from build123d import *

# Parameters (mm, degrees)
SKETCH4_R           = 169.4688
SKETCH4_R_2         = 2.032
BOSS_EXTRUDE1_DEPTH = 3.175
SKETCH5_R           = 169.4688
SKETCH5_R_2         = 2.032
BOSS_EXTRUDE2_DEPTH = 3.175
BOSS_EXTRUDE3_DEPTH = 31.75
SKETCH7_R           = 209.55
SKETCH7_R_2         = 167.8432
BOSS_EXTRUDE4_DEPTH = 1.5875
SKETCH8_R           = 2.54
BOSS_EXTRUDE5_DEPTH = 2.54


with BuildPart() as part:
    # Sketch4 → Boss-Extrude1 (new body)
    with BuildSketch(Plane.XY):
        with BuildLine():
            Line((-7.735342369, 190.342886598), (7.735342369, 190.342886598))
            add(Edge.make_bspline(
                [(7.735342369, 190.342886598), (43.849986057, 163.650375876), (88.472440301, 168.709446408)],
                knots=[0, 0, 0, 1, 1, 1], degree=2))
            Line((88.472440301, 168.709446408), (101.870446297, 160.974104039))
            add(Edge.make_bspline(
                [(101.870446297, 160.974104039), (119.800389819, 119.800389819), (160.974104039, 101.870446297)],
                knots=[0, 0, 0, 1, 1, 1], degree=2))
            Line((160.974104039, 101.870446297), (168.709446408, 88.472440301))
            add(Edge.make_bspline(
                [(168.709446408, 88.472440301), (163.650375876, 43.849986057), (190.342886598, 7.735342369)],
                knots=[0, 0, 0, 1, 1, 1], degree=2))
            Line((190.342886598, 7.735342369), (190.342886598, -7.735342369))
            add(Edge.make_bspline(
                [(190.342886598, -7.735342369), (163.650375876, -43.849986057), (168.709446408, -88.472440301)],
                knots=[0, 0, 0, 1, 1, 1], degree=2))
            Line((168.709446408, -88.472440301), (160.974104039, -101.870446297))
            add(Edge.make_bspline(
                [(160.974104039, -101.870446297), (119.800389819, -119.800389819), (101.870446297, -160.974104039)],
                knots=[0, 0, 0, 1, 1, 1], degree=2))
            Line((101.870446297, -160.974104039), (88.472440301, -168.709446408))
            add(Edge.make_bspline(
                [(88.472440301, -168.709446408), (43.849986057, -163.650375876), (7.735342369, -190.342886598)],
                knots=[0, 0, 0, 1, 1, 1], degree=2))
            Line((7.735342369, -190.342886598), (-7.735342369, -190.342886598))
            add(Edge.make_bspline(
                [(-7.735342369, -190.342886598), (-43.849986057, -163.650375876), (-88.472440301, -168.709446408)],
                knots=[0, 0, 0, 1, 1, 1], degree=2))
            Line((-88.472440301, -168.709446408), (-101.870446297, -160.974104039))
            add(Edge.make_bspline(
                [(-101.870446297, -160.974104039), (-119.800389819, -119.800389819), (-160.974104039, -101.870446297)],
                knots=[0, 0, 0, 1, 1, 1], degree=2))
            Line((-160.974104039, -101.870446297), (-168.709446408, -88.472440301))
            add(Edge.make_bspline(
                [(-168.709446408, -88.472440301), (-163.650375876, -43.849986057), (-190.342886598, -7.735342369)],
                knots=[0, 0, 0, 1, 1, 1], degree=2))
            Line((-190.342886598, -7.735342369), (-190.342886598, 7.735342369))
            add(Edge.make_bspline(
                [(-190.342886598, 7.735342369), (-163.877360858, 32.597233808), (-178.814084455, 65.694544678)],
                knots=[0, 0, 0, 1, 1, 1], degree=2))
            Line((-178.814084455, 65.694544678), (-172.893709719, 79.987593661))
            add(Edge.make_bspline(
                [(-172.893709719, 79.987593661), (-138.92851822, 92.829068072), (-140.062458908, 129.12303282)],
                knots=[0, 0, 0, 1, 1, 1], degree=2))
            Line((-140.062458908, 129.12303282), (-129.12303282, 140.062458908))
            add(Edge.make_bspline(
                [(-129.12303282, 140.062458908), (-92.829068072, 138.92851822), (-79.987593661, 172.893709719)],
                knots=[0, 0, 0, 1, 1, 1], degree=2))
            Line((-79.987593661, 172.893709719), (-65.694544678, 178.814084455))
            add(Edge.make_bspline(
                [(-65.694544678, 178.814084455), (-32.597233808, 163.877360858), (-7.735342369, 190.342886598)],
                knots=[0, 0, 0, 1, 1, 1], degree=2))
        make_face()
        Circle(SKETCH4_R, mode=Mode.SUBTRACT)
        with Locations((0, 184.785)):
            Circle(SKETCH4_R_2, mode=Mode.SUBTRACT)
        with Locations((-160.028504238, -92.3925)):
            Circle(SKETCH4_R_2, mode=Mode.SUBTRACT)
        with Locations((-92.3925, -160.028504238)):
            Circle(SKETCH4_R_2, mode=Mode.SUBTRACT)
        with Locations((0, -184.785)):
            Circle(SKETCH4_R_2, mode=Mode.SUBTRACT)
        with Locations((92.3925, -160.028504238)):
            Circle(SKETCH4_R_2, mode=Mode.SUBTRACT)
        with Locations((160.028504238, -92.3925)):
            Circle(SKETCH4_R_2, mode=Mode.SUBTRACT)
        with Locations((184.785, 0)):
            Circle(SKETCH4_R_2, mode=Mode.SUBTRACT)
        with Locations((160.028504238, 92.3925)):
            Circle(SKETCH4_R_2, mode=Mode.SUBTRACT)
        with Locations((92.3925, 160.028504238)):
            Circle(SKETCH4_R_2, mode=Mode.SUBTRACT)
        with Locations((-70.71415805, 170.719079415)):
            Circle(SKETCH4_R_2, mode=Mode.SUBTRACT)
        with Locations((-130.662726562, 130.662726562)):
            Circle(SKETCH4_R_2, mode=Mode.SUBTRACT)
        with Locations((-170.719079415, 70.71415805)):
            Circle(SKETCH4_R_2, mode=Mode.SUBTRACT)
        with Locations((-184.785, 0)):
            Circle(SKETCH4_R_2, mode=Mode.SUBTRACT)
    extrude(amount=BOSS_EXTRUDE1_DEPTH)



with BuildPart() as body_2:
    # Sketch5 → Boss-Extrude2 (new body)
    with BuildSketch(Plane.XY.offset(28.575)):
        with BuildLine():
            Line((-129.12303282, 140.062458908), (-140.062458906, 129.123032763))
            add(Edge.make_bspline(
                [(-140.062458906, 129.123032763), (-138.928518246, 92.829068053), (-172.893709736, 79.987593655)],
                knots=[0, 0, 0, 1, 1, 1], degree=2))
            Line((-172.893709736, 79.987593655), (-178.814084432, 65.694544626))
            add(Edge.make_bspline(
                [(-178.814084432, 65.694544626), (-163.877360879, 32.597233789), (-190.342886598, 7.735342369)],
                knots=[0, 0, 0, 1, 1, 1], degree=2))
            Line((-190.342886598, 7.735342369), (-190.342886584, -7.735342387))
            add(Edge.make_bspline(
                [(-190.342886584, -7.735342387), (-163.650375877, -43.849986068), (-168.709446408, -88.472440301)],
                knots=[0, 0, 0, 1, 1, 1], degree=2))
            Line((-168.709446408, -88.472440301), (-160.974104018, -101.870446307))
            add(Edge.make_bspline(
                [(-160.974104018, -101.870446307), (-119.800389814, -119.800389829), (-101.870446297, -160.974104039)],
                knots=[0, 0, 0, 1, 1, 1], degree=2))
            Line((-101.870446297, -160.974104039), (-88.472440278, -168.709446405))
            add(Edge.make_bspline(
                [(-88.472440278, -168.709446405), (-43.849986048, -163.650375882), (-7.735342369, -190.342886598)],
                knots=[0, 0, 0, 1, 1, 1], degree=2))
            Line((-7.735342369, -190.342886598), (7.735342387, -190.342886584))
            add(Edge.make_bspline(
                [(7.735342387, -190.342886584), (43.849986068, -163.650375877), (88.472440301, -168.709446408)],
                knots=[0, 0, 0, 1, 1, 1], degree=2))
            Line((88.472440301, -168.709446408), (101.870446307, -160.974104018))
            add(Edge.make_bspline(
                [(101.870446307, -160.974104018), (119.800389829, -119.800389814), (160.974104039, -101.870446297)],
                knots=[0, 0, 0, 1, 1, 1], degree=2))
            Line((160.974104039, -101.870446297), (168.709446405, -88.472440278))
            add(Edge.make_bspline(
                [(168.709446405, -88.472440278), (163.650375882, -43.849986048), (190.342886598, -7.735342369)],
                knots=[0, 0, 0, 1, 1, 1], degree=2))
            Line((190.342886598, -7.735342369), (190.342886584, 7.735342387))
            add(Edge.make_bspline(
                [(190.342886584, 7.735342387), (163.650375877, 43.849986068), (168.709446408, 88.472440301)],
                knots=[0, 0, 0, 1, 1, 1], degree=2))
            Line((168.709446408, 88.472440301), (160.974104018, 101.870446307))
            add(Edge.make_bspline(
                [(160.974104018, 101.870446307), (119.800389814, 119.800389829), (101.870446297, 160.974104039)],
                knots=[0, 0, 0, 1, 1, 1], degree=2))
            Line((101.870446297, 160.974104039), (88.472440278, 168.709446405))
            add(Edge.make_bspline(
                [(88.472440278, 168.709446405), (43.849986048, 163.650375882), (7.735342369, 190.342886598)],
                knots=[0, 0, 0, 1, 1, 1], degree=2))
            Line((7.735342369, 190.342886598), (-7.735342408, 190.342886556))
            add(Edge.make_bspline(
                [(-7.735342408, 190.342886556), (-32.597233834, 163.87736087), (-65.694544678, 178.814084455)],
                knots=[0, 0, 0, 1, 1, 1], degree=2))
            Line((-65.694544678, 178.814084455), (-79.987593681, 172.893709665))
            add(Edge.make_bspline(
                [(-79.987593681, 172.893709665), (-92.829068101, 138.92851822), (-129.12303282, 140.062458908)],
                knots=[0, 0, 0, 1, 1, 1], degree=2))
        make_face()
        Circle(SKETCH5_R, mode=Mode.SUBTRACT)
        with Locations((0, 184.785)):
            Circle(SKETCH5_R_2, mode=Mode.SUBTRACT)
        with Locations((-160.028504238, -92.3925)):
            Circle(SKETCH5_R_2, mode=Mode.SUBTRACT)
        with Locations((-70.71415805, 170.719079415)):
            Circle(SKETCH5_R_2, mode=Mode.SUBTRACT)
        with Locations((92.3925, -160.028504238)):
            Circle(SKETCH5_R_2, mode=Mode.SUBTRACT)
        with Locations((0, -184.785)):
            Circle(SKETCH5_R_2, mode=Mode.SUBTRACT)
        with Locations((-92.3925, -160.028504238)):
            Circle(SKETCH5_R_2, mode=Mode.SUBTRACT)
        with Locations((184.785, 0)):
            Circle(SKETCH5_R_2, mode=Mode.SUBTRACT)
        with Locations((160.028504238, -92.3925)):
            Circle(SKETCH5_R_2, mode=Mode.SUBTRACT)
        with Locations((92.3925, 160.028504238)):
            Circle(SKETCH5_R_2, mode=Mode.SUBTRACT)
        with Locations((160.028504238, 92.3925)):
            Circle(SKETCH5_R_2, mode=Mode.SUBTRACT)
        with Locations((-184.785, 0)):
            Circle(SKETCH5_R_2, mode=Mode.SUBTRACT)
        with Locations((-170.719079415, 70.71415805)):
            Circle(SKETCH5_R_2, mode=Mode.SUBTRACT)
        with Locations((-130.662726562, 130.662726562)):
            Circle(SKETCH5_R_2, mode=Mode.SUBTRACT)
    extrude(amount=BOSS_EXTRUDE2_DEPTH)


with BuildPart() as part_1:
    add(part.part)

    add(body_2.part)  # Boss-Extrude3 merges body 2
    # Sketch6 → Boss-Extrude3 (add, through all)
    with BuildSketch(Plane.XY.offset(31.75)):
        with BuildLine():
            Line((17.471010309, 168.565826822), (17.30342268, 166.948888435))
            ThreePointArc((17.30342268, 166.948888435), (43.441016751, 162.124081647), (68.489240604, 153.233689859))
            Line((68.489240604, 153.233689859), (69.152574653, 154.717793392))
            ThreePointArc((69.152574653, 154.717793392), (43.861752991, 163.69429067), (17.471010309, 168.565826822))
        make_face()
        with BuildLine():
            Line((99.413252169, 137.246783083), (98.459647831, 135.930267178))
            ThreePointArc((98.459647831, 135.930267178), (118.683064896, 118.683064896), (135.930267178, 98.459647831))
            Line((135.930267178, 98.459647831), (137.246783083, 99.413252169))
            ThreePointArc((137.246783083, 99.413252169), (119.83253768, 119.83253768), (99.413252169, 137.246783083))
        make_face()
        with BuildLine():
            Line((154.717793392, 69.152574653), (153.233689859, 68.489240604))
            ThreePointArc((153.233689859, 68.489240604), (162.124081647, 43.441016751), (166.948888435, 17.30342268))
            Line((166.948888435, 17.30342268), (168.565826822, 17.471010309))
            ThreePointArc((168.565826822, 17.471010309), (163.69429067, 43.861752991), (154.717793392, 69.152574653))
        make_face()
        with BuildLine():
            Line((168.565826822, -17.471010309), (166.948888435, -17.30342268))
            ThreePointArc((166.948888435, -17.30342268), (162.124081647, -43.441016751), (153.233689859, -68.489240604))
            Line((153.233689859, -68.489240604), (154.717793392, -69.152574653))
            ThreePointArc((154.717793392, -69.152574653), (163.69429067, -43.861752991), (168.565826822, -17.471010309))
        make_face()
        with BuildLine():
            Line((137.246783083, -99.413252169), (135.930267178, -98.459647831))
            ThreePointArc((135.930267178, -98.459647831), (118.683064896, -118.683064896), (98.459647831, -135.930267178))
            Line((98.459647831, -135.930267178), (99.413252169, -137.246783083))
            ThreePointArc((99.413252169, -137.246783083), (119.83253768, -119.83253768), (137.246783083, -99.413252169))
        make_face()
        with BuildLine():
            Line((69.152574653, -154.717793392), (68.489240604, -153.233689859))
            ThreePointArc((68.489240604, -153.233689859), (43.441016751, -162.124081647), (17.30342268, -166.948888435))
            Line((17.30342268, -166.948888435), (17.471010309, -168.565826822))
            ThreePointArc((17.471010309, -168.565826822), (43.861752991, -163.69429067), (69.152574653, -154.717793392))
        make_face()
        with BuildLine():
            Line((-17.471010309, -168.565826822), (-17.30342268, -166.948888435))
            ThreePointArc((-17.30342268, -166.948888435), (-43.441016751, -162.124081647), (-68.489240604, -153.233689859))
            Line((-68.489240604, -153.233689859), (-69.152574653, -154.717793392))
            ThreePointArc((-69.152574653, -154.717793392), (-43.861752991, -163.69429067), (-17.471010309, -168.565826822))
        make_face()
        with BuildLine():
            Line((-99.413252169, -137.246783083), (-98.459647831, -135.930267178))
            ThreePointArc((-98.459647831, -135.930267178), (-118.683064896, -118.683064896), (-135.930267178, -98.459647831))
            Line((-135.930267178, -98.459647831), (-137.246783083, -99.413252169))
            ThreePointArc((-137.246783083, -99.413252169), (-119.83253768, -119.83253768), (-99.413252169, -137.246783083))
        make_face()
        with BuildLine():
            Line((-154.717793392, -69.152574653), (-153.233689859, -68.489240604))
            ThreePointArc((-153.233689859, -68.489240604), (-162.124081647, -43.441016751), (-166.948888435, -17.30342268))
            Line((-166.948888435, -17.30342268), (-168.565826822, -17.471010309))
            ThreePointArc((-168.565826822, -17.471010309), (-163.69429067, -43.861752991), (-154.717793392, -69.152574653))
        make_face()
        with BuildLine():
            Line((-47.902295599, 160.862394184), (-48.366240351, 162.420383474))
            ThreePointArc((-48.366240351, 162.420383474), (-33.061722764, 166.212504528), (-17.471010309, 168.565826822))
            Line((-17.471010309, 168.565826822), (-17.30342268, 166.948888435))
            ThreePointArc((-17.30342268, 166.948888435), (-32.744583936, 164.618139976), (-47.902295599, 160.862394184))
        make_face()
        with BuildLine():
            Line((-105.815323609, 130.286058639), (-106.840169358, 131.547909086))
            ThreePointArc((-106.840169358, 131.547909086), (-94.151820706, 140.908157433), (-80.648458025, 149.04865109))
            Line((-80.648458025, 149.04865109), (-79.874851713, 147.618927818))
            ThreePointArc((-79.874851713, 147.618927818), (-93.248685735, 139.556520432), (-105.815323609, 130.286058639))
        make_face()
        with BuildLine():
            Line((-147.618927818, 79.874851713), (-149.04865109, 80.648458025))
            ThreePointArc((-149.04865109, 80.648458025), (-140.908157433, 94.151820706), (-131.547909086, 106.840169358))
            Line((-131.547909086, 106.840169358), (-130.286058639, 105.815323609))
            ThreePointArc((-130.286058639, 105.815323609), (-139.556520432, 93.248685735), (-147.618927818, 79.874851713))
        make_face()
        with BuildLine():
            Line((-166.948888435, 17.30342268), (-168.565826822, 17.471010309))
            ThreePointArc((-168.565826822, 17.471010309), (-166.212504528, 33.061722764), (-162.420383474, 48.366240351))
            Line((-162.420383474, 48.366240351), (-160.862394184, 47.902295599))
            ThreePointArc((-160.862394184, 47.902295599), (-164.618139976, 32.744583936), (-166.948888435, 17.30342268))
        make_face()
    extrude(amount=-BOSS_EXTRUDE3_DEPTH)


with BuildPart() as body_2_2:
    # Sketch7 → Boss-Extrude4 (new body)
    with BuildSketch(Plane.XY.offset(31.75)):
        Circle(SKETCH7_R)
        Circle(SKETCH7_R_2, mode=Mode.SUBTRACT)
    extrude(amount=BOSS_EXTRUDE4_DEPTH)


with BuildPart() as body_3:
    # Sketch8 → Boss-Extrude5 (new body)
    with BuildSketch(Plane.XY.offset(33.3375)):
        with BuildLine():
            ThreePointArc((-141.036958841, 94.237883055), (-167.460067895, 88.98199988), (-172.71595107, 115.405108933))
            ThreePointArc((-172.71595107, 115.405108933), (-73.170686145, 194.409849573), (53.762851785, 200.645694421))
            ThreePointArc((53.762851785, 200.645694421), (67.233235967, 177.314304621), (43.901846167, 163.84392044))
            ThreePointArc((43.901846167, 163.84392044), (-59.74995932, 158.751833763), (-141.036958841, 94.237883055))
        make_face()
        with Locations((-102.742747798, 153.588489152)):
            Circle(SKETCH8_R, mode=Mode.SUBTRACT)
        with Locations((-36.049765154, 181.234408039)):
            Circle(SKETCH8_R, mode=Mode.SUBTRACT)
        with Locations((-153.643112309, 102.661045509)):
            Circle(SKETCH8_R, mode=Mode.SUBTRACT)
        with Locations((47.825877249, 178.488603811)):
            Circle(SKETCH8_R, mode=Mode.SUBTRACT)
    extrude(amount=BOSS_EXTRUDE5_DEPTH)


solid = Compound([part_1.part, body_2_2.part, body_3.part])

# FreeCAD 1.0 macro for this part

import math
import FreeCAD as App
import Part
import Sketcher

V = App.Vector
Q = App.Units.Quantity

doc = App.newDocument("Part")
body = doc.addObject("PartDesign::Body", "Body")

# Sketch on XY plane
sketch1 = body.newObject("Sketcher::SketchObject", "Sketch")
sketch1.AttachmentSupport = (doc.getObject("XY_Plane"), [""])
sketch1.MapMode = "FlatFace"
sketch1.addGeometry([
    Part.LineSegment(V(7.735342, 190.342887, 0), V(-7.735342, 190.342887, 0)),  # 0
    Part.BSplineCurve([V(-65.694545, 178.814084, 0), V(-32.597234, 163.877361, 0), V(-7.735342, 190.342887, 0)], [3, 3], [0, 1], False, 2, [1, 1, 1], False),  # 1
    Part.LineSegment(V(-65.694545, 178.814084, 0), V(-79.987594, 172.89371, 0)),  # 2
    Part.BSplineCurve([V(-129.123033, 140.062459, 0), V(-92.829068, 138.928518, 0), V(-79.987594, 172.89371, 0)], [3, 3], [0, 1], False, 2, [1, 1, 1], False),  # 3
    Part.LineSegment(V(-129.123033, 140.062459, 0), V(-140.062459, 129.123033, 0)),  # 4
    Part.BSplineCurve([V(-172.89371, 79.987594, 0), V(-138.928518, 92.829068, 0), V(-140.062459, 129.123033, 0)], [3, 3], [0, 1], False, 2, [1, 1, 1], False),  # 5
    Part.LineSegment(V(-172.89371, 79.987594, 0), V(-178.814084, 65.694545, 0)),  # 6
    Part.BSplineCurve([V(-190.342887, 7.735342, 0), V(-163.877361, 32.597234, 0), V(-178.814084, 65.694545, 0)], [3, 3], [0, 1], False, 2, [1, 1, 1], False),  # 7
    Part.LineSegment(V(-190.342887, 7.735342, 0), V(-190.342887, -7.735342, 0)),  # 8
    Part.BSplineCurve([V(-168.709446, -88.47244, 0), V(-163.650376, -43.849986, 0), V(-190.342887, -7.735342, 0)], [3, 3], [0, 1], False, 2, [1, 1, 1], False),  # 9
    Part.LineSegment(V(-168.709446, -88.47244, 0), V(-160.974104, -101.870446, 0)),  # 10
    Part.BSplineCurve([V(-101.870446, -160.974104, 0), V(-119.80039, -119.80039, 0), V(-160.974104, -101.870446, 0)], [3, 3], [0, 1], False, 2, [1, 1, 1], False),  # 11
    Part.LineSegment(V(-101.870446, -160.974104, 0), V(-88.47244, -168.709446, 0)),  # 12
    Part.BSplineCurve([V(-7.735342, -190.342887, 0), V(-43.849986, -163.650376, 0), V(-88.47244, -168.709446, 0)], [3, 3], [0, 1], False, 2, [1, 1, 1], False),  # 13
    Part.LineSegment(V(-7.735342, -190.342887, 0), V(7.735342, -190.342887, 0)),  # 14
    Part.BSplineCurve([V(88.47244, -168.709446, 0), V(43.849986, -163.650376, 0), V(7.735342, -190.342887, 0)], [3, 3], [0, 1], False, 2, [1, 1, 1], False),  # 15
    Part.LineSegment(V(88.47244, -168.709446, 0), V(101.870446, -160.974104, 0)),  # 16
    Part.BSplineCurve([V(160.974104, -101.870446, 0), V(119.80039, -119.80039, 0), V(101.870446, -160.974104, 0)], [3, 3], [0, 1], False, 2, [1, 1, 1], False),  # 17
    Part.LineSegment(V(160.974104, -101.870446, 0), V(168.709446, -88.47244, 0)),  # 18
    Part.BSplineCurve([V(190.342887, -7.735342, 0), V(163.650376, -43.849986, 0), V(168.709446, -88.47244, 0)], [3, 3], [0, 1], False, 2, [1, 1, 1], False),  # 19
    Part.LineSegment(V(190.342887, -7.735342, 0), V(190.342887, 7.735342, 0)),  # 20
    Part.BSplineCurve([V(168.709446, 88.47244, 0), V(163.650376, 43.849986, 0), V(190.342887, 7.735342, 0)], [3, 3], [0, 1], False, 2, [1, 1, 1], False),  # 21
    Part.LineSegment(V(168.709446, 88.47244, 0), V(160.974104, 101.870446, 0)),  # 22
    Part.BSplineCurve([V(101.870446, 160.974104, 0), V(119.80039, 119.80039, 0), V(160.974104, 101.870446, 0)], [3, 3], [0, 1], False, 2, [1, 1, 1], False),  # 23
    Part.LineSegment(V(101.870446, 160.974104, 0), V(88.47244, 168.709446, 0)),  # 24
    Part.BSplineCurve([V(7.735342, 190.342887, 0), V(43.849986, 163.650376, 0), V(88.47244, 168.709446, 0)], [3, 3], [0, 1], False, 2, [1, 1, 1], False),  # 25
    Part.Circle(V(92.3925, -160.028504, 0), V(0, 0, 1), 2.032),  # 26
    Part.Circle(V(0, -184.785, 0), V(0, 0, 1), 2.032),  # 27
    Part.Circle(V(160.028504, -92.3925, 0), V(0, 0, 1), 2.032),  # 28
    Part.Circle(V(184.785, 0, 0), V(0, 0, 1), 2.032),  # 29
    Part.Circle(V(0, 0, 0), V(0, 0, 1), 169.4688),  # 30
    Part.Circle(V(-92.3925, -160.028504, 0), V(0, 0, 1), 2.032),  # 31
    Part.Circle(V(-160.028504, -92.3925, 0), V(0, 0, 1), 2.032),  # 32
    Part.Circle(V(-184.785, 0, 0), V(0, 0, 1), 2.032),  # 33
    Part.Circle(V(160.028504, 92.3925, 0), V(0, 0, 1), 2.032),  # 34
    Part.Circle(V(92.3925, 160.028504, 0), V(0, 0, 1), 2.032),  # 35
    Part.Circle(V(0, 184.785, 0), V(0, 0, 1), 2.032),  # 36
    Part.Circle(V(-170.719079, 70.714158, 0), V(0, 0, 1), 2.032),  # 37
    Part.Circle(V(-70.714158, 170.719079, 0), V(0, 0, 1), 2.032),  # 38
    Part.Circle(V(-130.662727, 130.662727, 0), V(0, 0, 1), 2.032),  # 39
], False)
sketch1.addConstraint([
    Sketcher.Constraint("Block", 1),
    Sketcher.Constraint("Block", 3),
    Sketcher.Constraint("Block", 5),
    Sketcher.Constraint("Block", 7),
    Sketcher.Constraint("Block", 9),
    Sketcher.Constraint("Block", 11),
    Sketcher.Constraint("Block", 13),
    Sketcher.Constraint("Block", 15),
    Sketcher.Constraint("Block", 17),
    Sketcher.Constraint("Block", 19),
    Sketcher.Constraint("Block", 21),
    Sketcher.Constraint("Block", 23),
    Sketcher.Constraint("Block", 25),
    Sketcher.Constraint("Coincident", 0, 2, 1, 2),
    Sketcher.Constraint("Coincident", 1, 1, 2, 1),
    Sketcher.Constraint("Coincident", 2, 2, 3, 2),
    Sketcher.Constraint("Coincident", 3, 1, 4, 1),
    Sketcher.Constraint("Coincident", 4, 2, 5, 2),
    Sketcher.Constraint("Coincident", 5, 1, 6, 1),
    Sketcher.Constraint("Coincident", 6, 2, 7, 2),
    Sketcher.Constraint("Coincident", 7, 1, 8, 1),
    Sketcher.Constraint("Coincident", 8, 2, 9, 2),
    Sketcher.Constraint("Coincident", 9, 1, 10, 1),
    Sketcher.Constraint("Coincident", 10, 2, 11, 2),
    Sketcher.Constraint("Coincident", 11, 1, 12, 1),
    Sketcher.Constraint("Coincident", 12, 2, 13, 2),
    Sketcher.Constraint("Coincident", 13, 1, 14, 1),
    Sketcher.Constraint("Coincident", 14, 2, 15, 2),
    Sketcher.Constraint("Coincident", 15, 1, 16, 1),
    Sketcher.Constraint("Coincident", 16, 2, 17, 2),
    Sketcher.Constraint("Coincident", 17, 1, 18, 1),
    Sketcher.Constraint("Coincident", 18, 2, 19, 2),
    Sketcher.Constraint("Coincident", 19, 1, 20, 1),
    Sketcher.Constraint("Coincident", 20, 2, 21, 2),
    Sketcher.Constraint("Coincident", 21, 1, 22, 1),
    Sketcher.Constraint("Coincident", 22, 2, 23, 2),
    Sketcher.Constraint("Coincident", 23, 1, 24, 1),
    Sketcher.Constraint("Coincident", 24, 2, 25, 2),
    Sketcher.Constraint("Coincident", 25, 1, 0, 1),
    Sketcher.Constraint("Coincident", 30, 3, -1, 1),
    Sketcher.Constraint("Equal", 26, 27),
    Sketcher.Constraint("Equal", 27, 28),
    Sketcher.Constraint("Equal", 28, 29),
    Sketcher.Constraint("Equal", 29, 31),
    Sketcher.Constraint("Equal", 31, 32),
    Sketcher.Constraint("Equal", 32, 33),
    Sketcher.Constraint("Equal", 33, 34),
    Sketcher.Constraint("Equal", 34, 35),
    Sketcher.Constraint("Equal", 35, 36),
    Sketcher.Constraint("Equal", 36, 37),
    Sketcher.Constraint("Equal", 37, 38),
    Sketcher.Constraint("Equal", 38, 39),
    Sketcher.Constraint("Symmetric", 29, 3, 33, 3, -1, 1),
    Sketcher.Constraint("Symmetric", 32, 3, 34, 3, -1, 1),
    Sketcher.Constraint("Symmetric", 31, 3, 35, 3, -1, 1),
    Sketcher.Constraint("Symmetric", 27, 3, 36, 3, -1, 1),
    Sketcher.Constraint("Symmetric", 26, 3, 31, 3, -2),
    Sketcher.Constraint("Symmetric", 28, 3, 32, 3, -2),
    Sketcher.Constraint("PointOnObject", 27, 3, -2),
    Sketcher.Constraint("PointOnObject", 29, 3, -1),
    Sketcher.Constraint("Diameter", 26, Q("0.16 in")),
    Sketcher.Constraint("Diameter", 30, Q("13.344 in")),
    Sketcher.Constraint("DistanceY", 27, 3, -1, 1, Q("7.275 in")),
    Sketcher.Constraint("DistanceX", -1, 1, 29, 3, Q("7.275 in")),
    Sketcher.Constraint("DistanceX", 31, 3, 26, 3, Q("7.275 in")),
    Sketcher.Constraint("DistanceY", 28, 3, 34, 3, Q("7.275 in")),
    Sketcher.Constraint("DistanceX", 4, 2, 38, 3, Q("69.348301 mm")),
    Sketcher.Constraint("DistanceY", 8, 2, 37, 3, Q("78.4495 mm")),
    Sketcher.Constraint("DistanceX", 10, 2, 32, 3, Q("0.9456 mm")),
    Sketcher.Constraint("DistanceY", 16, 2, 26, 3, Q("0.9456 mm")),
    Sketcher.Constraint("DistanceX", 37, 3, -1, 1, Q("170.719079 mm")),
    Sketcher.Constraint("DistanceY", -1, 1, 38, 3, Q("170.719079 mm")),
    Sketcher.Constraint("DistanceY", 37, 3, 39, 3, Q("59.948569 mm")),
    Sketcher.Constraint("DistanceX", 39, 3, 38, 3, Q("59.948569 mm")),
])
pad1 = body.newObject("PartDesign::Pad", "Pad")
pad1.Profile = sketch1
pad1.Length = Q("0.125 in")
body2 = doc.addObject("PartDesign::Body", "Body001")

# Sketch on XY plane
sketch2 = body2.newObject("Sketcher::SketchObject", "Sketch001")
sketch2.AttachmentSupport = (doc.getObject("XY_Plane001"), [""])
sketch2.MapMode = "FlatFace"
sketch2.AttachmentOffset = App.Placement(V(0, 0, 1.125 * 25.4), App.Rotation())
sketch2.addGeometry([
    Part.LineSegment(V(-129.123033, 140.062459, 0), V(-140.062459, 129.123033, 0)),  # 0
    Part.BSplineCurve([V(-140.062459, 129.123033, 0), V(-138.928518, 92.829068, 0), V(-172.89371, 79.987594, 0)], [3, 3], [0, 1], False, 2, [1, 1, 1], False),  # 1
    Part.LineSegment(V(-172.89371, 79.987594, 0), V(-178.814084, 65.694545, 0)),  # 2
    Part.BSplineCurve([V(-178.814084, 65.694545, 0), V(-163.877361, 32.597234, 0), V(-190.342887, 7.735342, 0)], [3, 3], [0, 1], False, 2, [1, 1, 1], False),  # 3
    Part.LineSegment(V(-190.342887, 7.735342, 0), V(-190.342887, -7.735342, 0)),  # 4
    Part.BSplineCurve([V(-190.342887, -7.735342, 0), V(-163.650376, -43.849986, 0), V(-168.709446, -88.47244, 0)], [3, 3], [0, 1], False, 2, [1, 1, 1], False),  # 5
    Part.LineSegment(V(-168.709446, -88.47244, 0), V(-160.974104, -101.870446, 0)),  # 6
    Part.BSplineCurve([V(-160.974104, -101.870446, 0), V(-119.80039, -119.80039, 0), V(-101.870446, -160.974104, 0)], [3, 3], [0, 1], False, 2, [1, 1, 1], False),  # 7
    Part.LineSegment(V(-101.870446, -160.974104, 0), V(-88.47244, -168.709446, 0)),  # 8
    Part.BSplineCurve([V(-88.47244, -168.709446, 0), V(-43.849986, -163.650376, 0), V(-7.735342, -190.342887, 0)], [3, 3], [0, 1], False, 2, [1, 1, 1], False),  # 9
    Part.LineSegment(V(-7.735342, -190.342887, 0), V(7.735342, -190.342887, 0)),  # 10
    Part.BSplineCurve([V(7.735342, -190.342887, 0), V(43.849986, -163.650376, 0), V(88.47244, -168.709446, 0)], [3, 3], [0, 1], False, 2, [1, 1, 1], False),  # 11
    Part.LineSegment(V(88.47244, -168.709446, 0), V(101.870446, -160.974104, 0)),  # 12
    Part.BSplineCurve([V(101.870446, -160.974104, 0), V(119.80039, -119.80039, 0), V(160.974104, -101.870446, 0)], [3, 3], [0, 1], False, 2, [1, 1, 1], False),  # 13
    Part.LineSegment(V(160.974104, -101.870446, 0), V(168.709446, -88.47244, 0)),  # 14
    Part.BSplineCurve([V(168.709446, -88.47244, 0), V(163.650376, -43.849986, 0), V(190.342887, -7.735342, 0)], [3, 3], [0, 1], False, 2, [1, 1, 1], False),  # 15
    Part.LineSegment(V(190.342887, -7.735342, 0), V(190.342887, 7.735342, 0)),  # 16
    Part.BSplineCurve([V(190.342887, 7.735342, 0), V(163.650376, 43.849986, 0), V(168.709446, 88.47244, 0)], [3, 3], [0, 1], False, 2, [1, 1, 1], False),  # 17
    Part.LineSegment(V(168.709446, 88.47244, 0), V(160.974104, 101.870446, 0)),  # 18
    Part.BSplineCurve([V(160.974104, 101.870446, 0), V(119.80039, 119.80039, 0), V(101.870446, 160.974104, 0)], [3, 3], [0, 1], False, 2, [1, 1, 1], False),  # 19
    Part.LineSegment(V(101.870446, 160.974104, 0), V(88.47244, 168.709446, 0)),  # 20
    Part.BSplineCurve([V(88.47244, 168.709446, 0), V(43.849986, 163.650376, 0), V(7.735342, 190.342887, 0)], [3, 3], [0, 1], False, 2, [1, 1, 1], False),  # 21
    Part.LineSegment(V(7.735342, 190.342887, 0), V(-7.735342, 190.342887, 0)),  # 22
    Part.BSplineCurve([V(-7.735342, 190.342887, 0), V(-32.597234, 163.877361, 0), V(-65.694545, 178.814084, 0)], [3, 3], [0, 1], False, 2, [1, 1, 1], False),  # 23
    Part.LineSegment(V(-65.694545, 178.814084, 0), V(-79.987594, 172.89371, 0)),  # 24
    Part.BSplineCurve([V(-79.987594, 172.89371, 0), V(-92.829068, 138.928518, 0), V(-129.123033, 140.062459, 0)], [3, 3], [0, 1], False, 2, [1, 1, 1], False),  # 25
    Part.Circle(V(-92.3925, -160.028504, 0), V(0, 0, 1), 2.032),  # 26
    Part.Circle(V(0, -184.785, 0), V(0, 0, 1), 2.032),  # 27
    Part.Circle(V(-160.028504, -92.3925, 0), V(0, 0, 1), 2.032),  # 28
    Part.Circle(V(-184.785, 0, 0), V(0, 0, 1), 2.032),  # 29
    Part.Circle(V(0, 0, 0), V(0, 0, 1), 169.4688),  # 30
    Part.Circle(V(92.3925, -160.028504, 0), V(0, 0, 1), 2.032),  # 31
    Part.Circle(V(160.028504, -92.3925, 0), V(0, 0, 1), 2.032),  # 32
    Part.Circle(V(184.785, 0, 0), V(0, 0, 1), 2.032),  # 33
    Part.Circle(V(-170.719079, 70.714158, 0), V(0, 0, 1), 2.032),  # 34
    Part.Circle(V(-130.662727, 130.662727, 0), V(0, 0, 1), 2.032),  # 35
    Part.Circle(V(-70.714158, 170.719079, 0), V(0, 0, 1), 2.032),  # 36
    Part.Circle(V(0, 184.785, 0), V(0, 0, 1), 2.032),  # 37
    Part.Circle(V(160.028504, 92.3925, 0), V(0, 0, 1), 2.032),  # 38
    Part.Circle(V(92.3925, 160.028504, 0), V(0, 0, 1), 2.032),  # 39
], False)
sketch2.addConstraint([
    Sketcher.Constraint("Block", 1),
    Sketcher.Constraint("Block", 3),
    Sketcher.Constraint("Block", 5),
    Sketcher.Constraint("Block", 7),
    Sketcher.Constraint("Block", 9),
    Sketcher.Constraint("Block", 11),
    Sketcher.Constraint("Block", 13),
    Sketcher.Constraint("Block", 15),
    Sketcher.Constraint("Block", 17),
    Sketcher.Constraint("Block", 19),
    Sketcher.Constraint("Block", 21),
    Sketcher.Constraint("Block", 23),
    Sketcher.Constraint("Block", 25),
    Sketcher.Constraint("Coincident", 0, 2, 1, 1),
    Sketcher.Constraint("Coincident", 1, 2, 2, 1),
    Sketcher.Constraint("Coincident", 2, 2, 3, 1),
    Sketcher.Constraint("Coincident", 3, 2, 4, 1),
    Sketcher.Constraint("Coincident", 4, 2, 5, 1),
    Sketcher.Constraint("Coincident", 5, 2, 6, 1),
    Sketcher.Constraint("Coincident", 6, 2, 7, 1),
    Sketcher.Constraint("Coincident", 7, 2, 8, 1),
    Sketcher.Constraint("Coincident", 8, 2, 9, 1),
    Sketcher.Constraint("Coincident", 9, 2, 10, 1),
    Sketcher.Constraint("Coincident", 10, 2, 11, 1),
    Sketcher.Constraint("Coincident", 11, 2, 12, 1),
    Sketcher.Constraint("Coincident", 12, 2, 13, 1),
    Sketcher.Constraint("Coincident", 13, 2, 14, 1),
    Sketcher.Constraint("Coincident", 14, 2, 15, 1),
    Sketcher.Constraint("Coincident", 15, 2, 16, 1),
    Sketcher.Constraint("Coincident", 16, 2, 17, 1),
    Sketcher.Constraint("Coincident", 17, 2, 18, 1),
    Sketcher.Constraint("Coincident", 18, 2, 19, 1),
    Sketcher.Constraint("Coincident", 19, 2, 20, 1),
    Sketcher.Constraint("Coincident", 20, 2, 21, 1),
    Sketcher.Constraint("Coincident", 21, 2, 22, 1),
    Sketcher.Constraint("Coincident", 22, 2, 23, 1),
    Sketcher.Constraint("Coincident", 23, 2, 24, 1),
    Sketcher.Constraint("Coincident", 24, 2, 25, 1),
    Sketcher.Constraint("Coincident", 25, 2, 0, 1),
    Sketcher.Constraint("Coincident", 30, 3, -1, 1),
    Sketcher.Constraint("Equal", 26, 27),
    Sketcher.Constraint("Equal", 27, 28),
    Sketcher.Constraint("Equal", 28, 29),
    Sketcher.Constraint("Equal", 29, 31),
    Sketcher.Constraint("Equal", 31, 32),
    Sketcher.Constraint("Equal", 32, 33),
    Sketcher.Constraint("Equal", 33, 34),
    Sketcher.Constraint("Equal", 34, 35),
    Sketcher.Constraint("Equal", 35, 36),
    Sketcher.Constraint("Equal", 36, 37),
    Sketcher.Constraint("Equal", 37, 38),
    Sketcher.Constraint("Equal", 38, 39),
    Sketcher.Constraint("Symmetric", 29, 3, 33, 3, -1, 1),
    Sketcher.Constraint("Symmetric", 27, 3, 37, 3, -1, 1),
    Sketcher.Constraint("Symmetric", 28, 3, 38, 3, -1, 1),
    Sketcher.Constraint("Symmetric", 26, 3, 39, 3, -1, 1),
    Sketcher.Constraint("Symmetric", 26, 3, 31, 3, -2),
    Sketcher.Constraint("Symmetric", 28, 3, 32, 3, -2),
    Sketcher.Constraint("PointOnObject", 27, 3, -2),
    Sketcher.Constraint("PointOnObject", 29, 3, -1),
    Sketcher.Constraint("Diameter", 26, Q("0.16 in")),
    Sketcher.Constraint("Diameter", 30, Q("13.344 in")),
    Sketcher.Constraint("DistanceY", 27, 3, -1, 1, Q("7.275 in")),
    Sketcher.Constraint("DistanceX", 29, 3, -1, 1, Q("7.275 in")),
    Sketcher.Constraint("DistanceX", 26, 3, 31, 3, Q("7.275 in")),
    Sketcher.Constraint("DistanceY", 32, 3, 38, 3, Q("7.275 in")),
    Sketcher.Constraint("DistanceX", 0, 2, 36, 3, Q("69.348301 mm")),
    Sketcher.Constraint("DistanceY", 4, 2, 34, 3, Q("78.4495 mm")),
    Sketcher.Constraint("DistanceX", 6, 2, 28, 3, Q("0.9456 mm")),
    Sketcher.Constraint("DistanceY", 12, 2, 31, 3, Q("0.9456 mm")),
    Sketcher.Constraint("DistanceX", 34, 3, -1, 1, Q("170.719079 mm")),
    Sketcher.Constraint("DistanceY", -1, 1, 36, 3, Q("170.719079 mm")),
    Sketcher.Constraint("DistanceY", 34, 3, 35, 3, Q("59.948569 mm")),
    Sketcher.Constraint("DistanceX", 35, 3, 36, 3, Q("59.948569 mm")),
])
pad2 = body2.newObject("PartDesign::Pad", "Pad001")
pad2.Profile = sketch2
pad2.Length = Q("0.125 in")
body.AllowCompound = True
doc.recompute()

boolean = body.newObject("PartDesign::Boolean", "Boolean")
boolean.Type = "Fuse"
boolean.addObjects([body2])

# Sketch on XY plane
sketch3 = body.newObject("Sketcher::SketchObject", "Sketch002")
sketch3.AttachmentSupport = (doc.getObject("XY_Plane"), [""])
sketch3.MapMode = "FlatFace"
sketch3.AttachmentOffset = App.Placement(V(0, 0, 1.25 * 25.4), App.Rotation())
sketch3.addGeometry([
    Part.LineSegment(V(17.5, 168.6, 0), V(17.3, 166.9, 0)),  # 0
    Part.ArcOfCircle(Part.Circle(V(0, 0, 0), V(0, 0, 1), 167.8), math.radians(65.92), math.radians(84.08)),  # 1
    Part.LineSegment(V(68.5, 153.2, 0), V(69.2, 154.7, 0)),  # 2
    Part.ArcOfCircle(Part.Circle(V(0, 0, 0), V(0, 0, 1), 169.5), math.radians(65.92), math.radians(84.08)),  # 3
    Part.LineSegment(V(99.4, 137.2, 0), V(98.5, 135.9, 0)),  # 4
    Part.ArcOfCircle(Part.Circle(V(0, 0, 0), V(0, 0, 1), 167.8), math.radians(35.92), math.radians(54.08)),  # 5
    Part.LineSegment(V(135.9, 98.5, 0), V(137.2, 99.4, 0)),  # 6
    Part.ArcOfCircle(Part.Circle(V(0, 0, 0), V(0, 0, 1), 169.5), math.radians(35.92), math.radians(54.08)),  # 7
    Part.LineSegment(V(154.7, 69.2, 0), V(153.2, 68.5, 0)),  # 8
    Part.ArcOfCircle(Part.Circle(V(0, 0, 0), V(0, 0, 1), 167.8), math.radians(5.92), math.radians(24.08)),  # 9
    Part.LineSegment(V(166.9, 17.3, 0), V(168.6, 17.5, 0)),  # 10
    Part.ArcOfCircle(Part.Circle(V(0, 0, 0), V(0, 0, 1), 169.5), math.radians(5.92), math.radians(24.08)),  # 11
    Part.LineSegment(V(168.6, -17.5, 0), V(166.9, -17.3, 0)),  # 12
    Part.ArcOfCircle(Part.Circle(V(0, 0, 0), V(0, 0, 1), 167.8), math.radians(-24.08), math.radians(-5.92)),  # 13
    Part.LineSegment(V(153.2, -68.5, 0), V(154.7, -69.2, 0)),  # 14
    Part.ArcOfCircle(Part.Circle(V(0, 0, 0), V(0, 0, 1), 169.5), math.radians(-24.08), math.radians(-5.92)),  # 15
    Part.LineSegment(V(137.2, -99.4, 0), V(135.9, -98.5, 0)),  # 16
    Part.ArcOfCircle(Part.Circle(V(0, 0, 0), V(0, 0, 1), 167.8), math.radians(-54.08), math.radians(-35.92)),  # 17
    Part.LineSegment(V(98.5, -135.9, 0), V(99.4, -137.2, 0)),  # 18
    Part.ArcOfCircle(Part.Circle(V(0, 0, 0), V(0, 0, 1), 169.5), math.radians(-54.08), math.radians(-35.92)),  # 19
    Part.LineSegment(V(69.2, -154.7, 0), V(68.5, -153.2, 0)),  # 20
    Part.ArcOfCircle(Part.Circle(V(0, 0, 0), V(0, 0, 1), 167.8), math.radians(-84.08), math.radians(-65.92)),  # 21
    Part.LineSegment(V(17.3, -166.9, 0), V(17.5, -168.6, 0)),  # 22
    Part.ArcOfCircle(Part.Circle(V(0, 0, 0), V(0, 0, 1), 169.5), math.radians(-84.08), math.radians(-65.92)),  # 23
    Part.LineSegment(V(-17.5, -168.6, 0), V(-17.3, -166.9, 0)),  # 24
    Part.ArcOfCircle(Part.Circle(V(0, 0, 0), V(0, 0, 1), 167.8), math.radians(-114.08), math.radians(-95.92)),  # 25
    Part.LineSegment(V(-68.5, -153.2, 0), V(-69.2, -154.7, 0)),  # 26
    Part.ArcOfCircle(Part.Circle(V(0, 0, 0), V(0, 0, 1), 169.5), math.radians(-114.08), math.radians(-95.92)),  # 27
    Part.LineSegment(V(-99.4, -137.2, 0), V(-98.5, -135.9, 0)),  # 28
    Part.ArcOfCircle(Part.Circle(V(0, 0, 0), V(0, 0, 1), 167.8), math.radians(-144.08), math.radians(-125.92)),  # 29
    Part.LineSegment(V(-135.9, -98.5, 0), V(-137.2, -99.4, 0)),  # 30
    Part.ArcOfCircle(Part.Circle(V(0, 0, 0), V(0, 0, 1), 169.5), math.radians(-144.08), math.radians(-125.92)),  # 31
    Part.LineSegment(V(-154.7, -69.2, 0), V(-153.2, -68.5, 0)),  # 32
    Part.ArcOfCircle(Part.Circle(V(0, 0, 0), V(0, 0, 1), 167.8), math.radians(-174.08), math.radians(-155.92)),  # 33
    Part.LineSegment(V(-166.9, -17.3, 0), V(-168.6, -17.5, 0)),  # 34
    Part.ArcOfCircle(Part.Circle(V(0, 0, 0), V(0, 0, 1), 169.5), math.radians(-174.08), math.radians(-155.92)),  # 35
    Part.LineSegment(V(-48.4, 162.4, 0), V(-47.9, 160.9, 0)),  # 36
    Part.ArcOfCircle(Part.Circle(V(0, 0, 0), V(0, 0, 1), 167.8), math.radians(95.92), math.radians(106.58)),  # 37
    Part.LineSegment(V(-17.3, 166.9, 0), V(-17.5, 168.6, 0)),  # 38
    Part.ArcOfCircle(Part.Circle(V(0, 0, 0), V(0, 0, 1), 169.5), math.radians(95.92), math.radians(106.58)),  # 39
    Part.LineSegment(V(-106.8, 131.5, 0), V(-105.8, 130.3, 0)),  # 40
    Part.ArcOfCircle(Part.Circle(V(0, 0, 0), V(0, 0, 1), 167.8), math.radians(118.42), math.radians(129.08)),  # 41
    Part.LineSegment(V(-79.9, 147.6, 0), V(-80.6, 149, 0)),  # 42
    Part.ArcOfCircle(Part.Circle(V(0, 0, 0), V(0, 0, 1), 169.5), math.radians(118.42), math.radians(129.08)),  # 43
    Part.LineSegment(V(-149, 80.6, 0), V(-147.6, 79.9, 0)),  # 44
    Part.ArcOfCircle(Part.Circle(V(0, 0, 0), V(0, 0, 1), 167.8), math.radians(140.92), math.radians(151.58)),  # 45
    Part.LineSegment(V(-130.3, 105.8, 0), V(-131.5, 106.8, 0)),  # 46
    Part.ArcOfCircle(Part.Circle(V(0, 0, 0), V(0, 0, 1), 169.5), math.radians(140.92), math.radians(151.58)),  # 47
    Part.LineSegment(V(-168.6, 17.5, 0), V(-166.9, 17.3, 0)),  # 48
    Part.ArcOfCircle(Part.Circle(V(0, 0, 0), V(0, 0, 1), 167.8), math.radians(163.42), math.radians(174.08)),  # 49
    Part.LineSegment(V(-160.9, 47.9, 0), V(-162.4, 48.4, 0)),  # 50
    Part.ArcOfCircle(Part.Circle(V(0, 0, 0), V(0, 0, 1), 169.5), math.radians(163.42), math.radians(174.08)),  # 51
], False)
sketch3.addConstraint([
    Sketcher.Constraint("Coincident", 0, 2, 1, 2),
    Sketcher.Constraint("Coincident", 1, 1, 2, 1),
    Sketcher.Constraint("Coincident", 2, 2, 3, 1),
    Sketcher.Constraint("Coincident", 3, 2, 0, 1),
    Sketcher.Constraint("Coincident", 4, 2, 5, 2),
    Sketcher.Constraint("Coincident", 5, 1, 6, 1),
    Sketcher.Constraint("Coincident", 6, 2, 7, 1),
    Sketcher.Constraint("Coincident", 7, 2, 4, 1),
    Sketcher.Constraint("Coincident", 8, 2, 9, 2),
    Sketcher.Constraint("Coincident", 9, 1, 10, 1),
    Sketcher.Constraint("Coincident", 10, 2, 11, 1),
    Sketcher.Constraint("Coincident", 11, 2, 8, 1),
    Sketcher.Constraint("Coincident", 12, 2, 13, 2),
    Sketcher.Constraint("Coincident", 13, 1, 14, 1),
    Sketcher.Constraint("Coincident", 14, 2, 15, 1),
    Sketcher.Constraint("Coincident", 15, 2, 12, 1),
    Sketcher.Constraint("Coincident", 16, 2, 17, 2),
    Sketcher.Constraint("Coincident", 17, 1, 18, 1),
    Sketcher.Constraint("Coincident", 18, 2, 19, 1),
    Sketcher.Constraint("Coincident", 19, 2, 16, 1),
    Sketcher.Constraint("Coincident", 20, 2, 21, 2),
    Sketcher.Constraint("Coincident", 21, 1, 22, 1),
    Sketcher.Constraint("Coincident", 22, 2, 23, 1),
    Sketcher.Constraint("Coincident", 23, 2, 20, 1),
    Sketcher.Constraint("Coincident", 24, 2, 25, 2),
    Sketcher.Constraint("Coincident", 25, 1, 26, 1),
    Sketcher.Constraint("Coincident", 26, 2, 27, 1),
    Sketcher.Constraint("Coincident", 27, 2, 24, 1),
    Sketcher.Constraint("Coincident", 28, 2, 29, 2),
    Sketcher.Constraint("Coincident", 29, 1, 30, 1),
    Sketcher.Constraint("Coincident", 30, 2, 31, 1),
    Sketcher.Constraint("Coincident", 31, 2, 28, 1),
    Sketcher.Constraint("Coincident", 32, 2, 33, 2),
    Sketcher.Constraint("Coincident", 33, 1, 34, 1),
    Sketcher.Constraint("Coincident", 34, 2, 35, 1),
    Sketcher.Constraint("Coincident", 35, 2, 32, 1),
    Sketcher.Constraint("Coincident", 36, 2, 37, 2),
    Sketcher.Constraint("Coincident", 37, 1, 38, 1),
    Sketcher.Constraint("Coincident", 38, 2, 39, 1),
    Sketcher.Constraint("Coincident", 39, 2, 36, 1),
    Sketcher.Constraint("Coincident", 40, 2, 41, 2),
    Sketcher.Constraint("Coincident", 41, 1, 42, 1),
    Sketcher.Constraint("Coincident", 42, 2, 43, 1),
    Sketcher.Constraint("Coincident", 43, 2, 40, 1),
    Sketcher.Constraint("Coincident", 44, 2, 45, 2),
    Sketcher.Constraint("Coincident", 45, 1, 46, 1),
    Sketcher.Constraint("Coincident", 46, 2, 47, 1),
    Sketcher.Constraint("Coincident", 47, 2, 44, 1),
    Sketcher.Constraint("Coincident", 48, 2, 49, 2),
    Sketcher.Constraint("Coincident", 49, 1, 50, 1),
    Sketcher.Constraint("Coincident", 50, 2, 51, 1),
    Sketcher.Constraint("Coincident", 51, 2, 48, 1),
    Sketcher.Constraint("Coincident", 1, 3, -1, 1),
    Sketcher.Constraint("Coincident", 3, 3, -1, 1),
    Sketcher.Constraint("Coincident", 5, 3, -1, 1),
    Sketcher.Constraint("Coincident", 7, 3, -1, 1),
    Sketcher.Constraint("Coincident", 9, 3, -1, 1),
    Sketcher.Constraint("Coincident", 11, 3, -1, 1),
    Sketcher.Constraint("Coincident", 13, 3, -1, 1),
    Sketcher.Constraint("Coincident", 15, 3, -1, 1),
    Sketcher.Constraint("Coincident", 17, 3, -1, 1),
    Sketcher.Constraint("Coincident", 19, 3, -1, 1),
    Sketcher.Constraint("Coincident", 21, 3, -1, 1),
    Sketcher.Constraint("Coincident", 23, 3, -1, 1),
    Sketcher.Constraint("Coincident", 25, 3, -1, 1),
    Sketcher.Constraint("Coincident", 27, 3, -1, 1),
    Sketcher.Constraint("Coincident", 29, 3, -1, 1),
    Sketcher.Constraint("Coincident", 31, 3, -1, 1),
    Sketcher.Constraint("Coincident", 33, 3, -1, 1),
    Sketcher.Constraint("Coincident", 35, 3, -1, 1),
    Sketcher.Constraint("Coincident", 37, 3, -1, 1),
    Sketcher.Constraint("Coincident", 39, 3, -1, 1),
    Sketcher.Constraint("Coincident", 41, 3, -1, 1),
    Sketcher.Constraint("Coincident", 43, 3, -1, 1),
    Sketcher.Constraint("Coincident", 45, 3, -1, 1),
    Sketcher.Constraint("Coincident", 47, 3, -1, 1),
    Sketcher.Constraint("Coincident", 49, 3, -1, 1),
    Sketcher.Constraint("Coincident", 51, 3, -1, 1),
    Sketcher.Constraint("Equal", 1, 5),
    Sketcher.Constraint("Equal", 3, 7),
    Sketcher.Constraint("Equal", 5, 9),
    Sketcher.Constraint("Equal", 7, 11),
    Sketcher.Constraint("Equal", 9, 13),
    Sketcher.Constraint("Equal", 11, 15),
    Sketcher.Constraint("Equal", 13, 17),
    Sketcher.Constraint("Equal", 15, 19),
    Sketcher.Constraint("Equal", 17, 21),
    Sketcher.Constraint("Equal", 19, 23),
    Sketcher.Constraint("Equal", 21, 25),
    Sketcher.Constraint("Equal", 23, 27),
    Sketcher.Constraint("Equal", 25, 29),
    Sketcher.Constraint("Equal", 27, 31),
    Sketcher.Constraint("Equal", 29, 33),
    Sketcher.Constraint("Equal", 31, 35),
    Sketcher.Constraint("Equal", 33, 37),
    Sketcher.Constraint("Equal", 35, 39),
    Sketcher.Constraint("Equal", 37, 41),
    Sketcher.Constraint("Equal", 39, 43),
    Sketcher.Constraint("Equal", 41, 45),
    Sketcher.Constraint("Equal", 43, 47),
    Sketcher.Constraint("Equal", 45, 49),
    Sketcher.Constraint("Equal", 47, 51),
    Sketcher.Constraint("Perpendicular", 0, 12),
    Sketcher.Constraint("Perpendicular", 2, 14),
    Sketcher.Constraint("Perpendicular", 4, 16),
    Sketcher.Constraint("Perpendicular", 6, 18),
    Sketcher.Constraint("Perpendicular", 8, 20),
    Sketcher.Constraint("Perpendicular", 10, 22),
    Sketcher.Constraint("Perpendicular", 12, 24),
    Sketcher.Constraint("Perpendicular", 14, 26),
    Sketcher.Constraint("Perpendicular", 16, 28),
    Sketcher.Constraint("Perpendicular", 18, 30),
    Sketcher.Constraint("Perpendicular", 20, 32),
    Sketcher.Constraint("Perpendicular", 22, 34),
    Sketcher.Constraint("Perpendicular", 34, 38),
    Sketcher.Constraint("Perpendicular", 24, 48),
    Sketcher.Constraint("Horizontal", 21, 1, 24, 2),
    Sketcher.Constraint("Horizontal", 20, 2, 25, 1),
    Sketcher.Constraint("Horizontal", 23, 2, 26, 2),
    Sketcher.Constraint("Horizontal", 22, 2, 27, 2),
    Sketcher.Constraint("Horizontal", 17, 1, 28, 2),
    Sketcher.Constraint("Horizontal", 16, 2, 29, 1),
    Sketcher.Constraint("Horizontal", 19, 2, 30, 2),
    Sketcher.Constraint("Horizontal", 13, 1, 32, 2),
    Sketcher.Constraint("Horizontal", 12, 2, 33, 1),
    Sketcher.Constraint("Horizontal", 0, 2, 37, 1),
    Sketcher.Constraint("Horizontal", 9, 1, 48, 2),
    Sketcher.Constraint("Vertical", 9, 1, 12, 2),
    Sketcher.Constraint("Vertical", 8, 2, 13, 1),
    Sketcher.Constraint("Vertical", 5, 1, 16, 2),
    Sketcher.Constraint("Vertical", 4, 2, 17, 1),
    Sketcher.Constraint("Vertical", 1, 1, 20, 2),
    Sketcher.Constraint("Vertical", 0, 2, 21, 1),
    Sketcher.Constraint("Radius", 1, Q("6.608 in")),
    Sketcher.Constraint("Radius", 3, Q("6.672 in")),
    Sketcher.Constraint("DistanceY", -1, 1, 0, 2, Q("166.948888 mm")),
    Sketcher.Constraint("DistanceX", -1, 1, 1, 1, Q("68.489241 mm")),
    Sketcher.Constraint("DistanceX", -1, 1, 3, 2, Q("17.47101 mm")),
    Sketcher.Constraint("DistanceX", -1, 1, 8, 2, Q("153.23369 mm")),
    Sketcher.Constraint("DistanceX", -1, 1, 9, 1, Q("166.948888 mm")),
    Sketcher.Constraint("DistanceX", 39, 2, -1, 1, Q("48.36624 mm")),
    Sketcher.Constraint("DistanceY", -1, 1, 40, 2, Q("130.286059 mm")),
    Sketcher.Constraint("DistanceX", 41, 1, -1, 1, Q("79.874852 mm")),
    Sketcher.Constraint("DistanceX", 42, 2, -1, 1, Q("80.648458 mm")),
    Sketcher.Constraint("DistanceX", 43, 2, -1, 1, Q("106.840169 mm")),
    Sketcher.Constraint("DistanceY", -1, 1, 44, 2, Q("79.874852 mm")),
    Sketcher.Constraint("DistanceX", 45, 1, -1, 1, Q("130.286059 mm")),
    Sketcher.Constraint("DistanceX", 46, 2, -1, 1, Q("131.547909 mm")),
    Sketcher.Constraint("DistanceX", 47, 2, -1, 1, Q("149.048651 mm")),
    Sketcher.Constraint("DistanceY", -1, 1, 50, 2, Q("48.36624 mm")),
    Sketcher.Constraint("DistanceX", -1, 1, 2, 2, Q("69.152575 mm")),
    Sketcher.Constraint("DistanceX", -1, 1, 4, 2, Q("98.459648 mm")),
    Sketcher.Constraint("DistanceX", -1, 1, 5, 1, Q("135.930267 mm")),
    Sketcher.Constraint("DistanceX", -1, 1, 6, 2, Q("137.246783 mm")),
    Sketcher.Constraint("DistanceX", 36, 2, -1, 1, Q("47.902296 mm")),
    Sketcher.Constraint("DistanceX", 49, 1, -1, 1, Q("160.862394 mm")),
])
pad3 = body.newObject("PartDesign::Pad", "Pad002")
pad3.Profile = sketch3
pad3.Length = Q("1.25 in")
pad3.Reversed = True
body3 = doc.addObject("PartDesign::Body", "Body002")

# Sketch on XY plane
sketch4 = body3.newObject("Sketcher::SketchObject", "Sketch003")
sketch4.AttachmentSupport = (doc.getObject("XY_Plane002"), [""])
sketch4.MapMode = "FlatFace"
sketch4.AttachmentOffset = App.Placement(V(0, 0, 1.25 * 25.4), App.Rotation())
sketch4.addGeometry([
    Part.Circle(V(0, 0, 0), V(0, 0, 1), 210),
    Part.Circle(V(0, 0, 0), V(0, 0, 1), 168),
], False)
sketch4.addConstraint([
    Sketcher.Constraint("Coincident", 0, 3, -1, 1),
    Sketcher.Constraint("Coincident", 1, 3, -1, 1),
    Sketcher.Constraint("Diameter", 0, Q("16.5 in")),
    Sketcher.Constraint("Diameter", 1, Q("13.216 in")),
])
pad4 = body3.newObject("PartDesign::Pad", "Pad003")
pad4.Profile = sketch4
pad4.Length = Q("0.0625 in")
body4 = doc.addObject("PartDesign::Body", "Body003")

# Sketch on XY plane
sketch5 = body4.newObject("Sketcher::SketchObject", "Sketch004")
sketch5.AttachmentSupport = (doc.getObject("XY_Plane003"), [""])
sketch5.MapMode = "FlatFace"
sketch5.AttachmentOffset = App.Placement(V(0, 0, 1.3125 * 25.4), App.Rotation())
sketch5.addGeometry([
    Part.ArcOfCircle(Part.Circle(V(-156.9, 104.8, 0), V(0, 0, 1), 19.1), math.radians(146), math.radians(326)),  # 0
    Part.ArcOfCircle(Part.Circle(V(0, 0, 0), V(0, 0, 1), 169.6), math.radians(75), math.radians(146)),  # 1
    Part.ArcOfCircle(Part.Circle(V(48.8, 182.2, 0), V(0, 0, 1), 19.1), math.radians(-105), math.radians(75)),  # 2
    Part.ArcOfCircle(Part.Circle(V(0, 0, 0), V(0, 0, 1), 207.7), math.radians(75), math.radians(146)),  # 3
    Part.Circle(V(-153.6, 102.7, 0), V(0, 0, 1), 2.5),  # 4
    Part.Circle(V(47.8, 178.5, 0), V(0, 0, 1), 2.5),  # 5
    Part.Circle(V(-36, 181.2, 0), V(0, 0, 1), 2.5),  # 6
    Part.Circle(V(-102.7, 153.6, 0), V(0, 0, 1), 2.5),  # 7
], False)
sketch5.addConstraint([
    Sketcher.Constraint("Tangent", 0, 2, 1, 2),
    Sketcher.Constraint("Tangent", 1, 1, 2, 1),
    Sketcher.Constraint("Tangent", 2, 2, 3, 1),
    Sketcher.Constraint("Tangent", 3, 2, 0, 1),
    Sketcher.Constraint("Coincident", 1, 3, -1, 1),
    Sketcher.Constraint("Coincident", 3, 3, -1, 1),
    Sketcher.Constraint("Equal", 4, 5),
    Sketcher.Constraint("Equal", 5, 6),
    Sketcher.Constraint("Equal", 6, 7),
    Sketcher.Constraint("Diameter", 4, Q("0.2 in")),
    Sketcher.Constraint("Radius", 0, Q("0.75 in")),
    Sketcher.Constraint("Radius", 1, Q("169.623708 mm")),
    Sketcher.Constraint("DistanceY", 6, 3, 2, 3, Q("1.010399 mm")),
    Sketcher.Constraint("DistanceX", 7, 3, 2, 2, Q("156.5056 mm")),
    Sketcher.Constraint("DistanceY", 3, 2, 6, 3, Q("65.829299 mm")),
    Sketcher.Constraint("DistanceX", -1, 1, 2, 3, Q("48.832349 mm")),
    Sketcher.Constraint("DistanceY", -1, 1, 7, 3, Q("153.588489 mm")),
    Sketcher.Constraint("DistanceY", 4, 3, 0, 3, Q("2.16045 mm")),
    Sketcher.Constraint("DistanceX", 4, 3, 2, 3, Q("202.475461 mm")),
    Sketcher.Constraint("DistanceX", 5, 3, 2, 3, Q("1.006472 mm")),
    Sketcher.Constraint("DistanceY", 4, 3, 5, 3, Q("75.827558 mm")),
    Sketcher.Constraint("DistanceX", 0, 3, 6, 3, Q("120.82669 mm")),
])
pad5 = body4.newObject("PartDesign::Pad", "Pad004")
pad5.Profile = sketch5
pad5.Length = Q("0.1 in")

doc.recompute()
